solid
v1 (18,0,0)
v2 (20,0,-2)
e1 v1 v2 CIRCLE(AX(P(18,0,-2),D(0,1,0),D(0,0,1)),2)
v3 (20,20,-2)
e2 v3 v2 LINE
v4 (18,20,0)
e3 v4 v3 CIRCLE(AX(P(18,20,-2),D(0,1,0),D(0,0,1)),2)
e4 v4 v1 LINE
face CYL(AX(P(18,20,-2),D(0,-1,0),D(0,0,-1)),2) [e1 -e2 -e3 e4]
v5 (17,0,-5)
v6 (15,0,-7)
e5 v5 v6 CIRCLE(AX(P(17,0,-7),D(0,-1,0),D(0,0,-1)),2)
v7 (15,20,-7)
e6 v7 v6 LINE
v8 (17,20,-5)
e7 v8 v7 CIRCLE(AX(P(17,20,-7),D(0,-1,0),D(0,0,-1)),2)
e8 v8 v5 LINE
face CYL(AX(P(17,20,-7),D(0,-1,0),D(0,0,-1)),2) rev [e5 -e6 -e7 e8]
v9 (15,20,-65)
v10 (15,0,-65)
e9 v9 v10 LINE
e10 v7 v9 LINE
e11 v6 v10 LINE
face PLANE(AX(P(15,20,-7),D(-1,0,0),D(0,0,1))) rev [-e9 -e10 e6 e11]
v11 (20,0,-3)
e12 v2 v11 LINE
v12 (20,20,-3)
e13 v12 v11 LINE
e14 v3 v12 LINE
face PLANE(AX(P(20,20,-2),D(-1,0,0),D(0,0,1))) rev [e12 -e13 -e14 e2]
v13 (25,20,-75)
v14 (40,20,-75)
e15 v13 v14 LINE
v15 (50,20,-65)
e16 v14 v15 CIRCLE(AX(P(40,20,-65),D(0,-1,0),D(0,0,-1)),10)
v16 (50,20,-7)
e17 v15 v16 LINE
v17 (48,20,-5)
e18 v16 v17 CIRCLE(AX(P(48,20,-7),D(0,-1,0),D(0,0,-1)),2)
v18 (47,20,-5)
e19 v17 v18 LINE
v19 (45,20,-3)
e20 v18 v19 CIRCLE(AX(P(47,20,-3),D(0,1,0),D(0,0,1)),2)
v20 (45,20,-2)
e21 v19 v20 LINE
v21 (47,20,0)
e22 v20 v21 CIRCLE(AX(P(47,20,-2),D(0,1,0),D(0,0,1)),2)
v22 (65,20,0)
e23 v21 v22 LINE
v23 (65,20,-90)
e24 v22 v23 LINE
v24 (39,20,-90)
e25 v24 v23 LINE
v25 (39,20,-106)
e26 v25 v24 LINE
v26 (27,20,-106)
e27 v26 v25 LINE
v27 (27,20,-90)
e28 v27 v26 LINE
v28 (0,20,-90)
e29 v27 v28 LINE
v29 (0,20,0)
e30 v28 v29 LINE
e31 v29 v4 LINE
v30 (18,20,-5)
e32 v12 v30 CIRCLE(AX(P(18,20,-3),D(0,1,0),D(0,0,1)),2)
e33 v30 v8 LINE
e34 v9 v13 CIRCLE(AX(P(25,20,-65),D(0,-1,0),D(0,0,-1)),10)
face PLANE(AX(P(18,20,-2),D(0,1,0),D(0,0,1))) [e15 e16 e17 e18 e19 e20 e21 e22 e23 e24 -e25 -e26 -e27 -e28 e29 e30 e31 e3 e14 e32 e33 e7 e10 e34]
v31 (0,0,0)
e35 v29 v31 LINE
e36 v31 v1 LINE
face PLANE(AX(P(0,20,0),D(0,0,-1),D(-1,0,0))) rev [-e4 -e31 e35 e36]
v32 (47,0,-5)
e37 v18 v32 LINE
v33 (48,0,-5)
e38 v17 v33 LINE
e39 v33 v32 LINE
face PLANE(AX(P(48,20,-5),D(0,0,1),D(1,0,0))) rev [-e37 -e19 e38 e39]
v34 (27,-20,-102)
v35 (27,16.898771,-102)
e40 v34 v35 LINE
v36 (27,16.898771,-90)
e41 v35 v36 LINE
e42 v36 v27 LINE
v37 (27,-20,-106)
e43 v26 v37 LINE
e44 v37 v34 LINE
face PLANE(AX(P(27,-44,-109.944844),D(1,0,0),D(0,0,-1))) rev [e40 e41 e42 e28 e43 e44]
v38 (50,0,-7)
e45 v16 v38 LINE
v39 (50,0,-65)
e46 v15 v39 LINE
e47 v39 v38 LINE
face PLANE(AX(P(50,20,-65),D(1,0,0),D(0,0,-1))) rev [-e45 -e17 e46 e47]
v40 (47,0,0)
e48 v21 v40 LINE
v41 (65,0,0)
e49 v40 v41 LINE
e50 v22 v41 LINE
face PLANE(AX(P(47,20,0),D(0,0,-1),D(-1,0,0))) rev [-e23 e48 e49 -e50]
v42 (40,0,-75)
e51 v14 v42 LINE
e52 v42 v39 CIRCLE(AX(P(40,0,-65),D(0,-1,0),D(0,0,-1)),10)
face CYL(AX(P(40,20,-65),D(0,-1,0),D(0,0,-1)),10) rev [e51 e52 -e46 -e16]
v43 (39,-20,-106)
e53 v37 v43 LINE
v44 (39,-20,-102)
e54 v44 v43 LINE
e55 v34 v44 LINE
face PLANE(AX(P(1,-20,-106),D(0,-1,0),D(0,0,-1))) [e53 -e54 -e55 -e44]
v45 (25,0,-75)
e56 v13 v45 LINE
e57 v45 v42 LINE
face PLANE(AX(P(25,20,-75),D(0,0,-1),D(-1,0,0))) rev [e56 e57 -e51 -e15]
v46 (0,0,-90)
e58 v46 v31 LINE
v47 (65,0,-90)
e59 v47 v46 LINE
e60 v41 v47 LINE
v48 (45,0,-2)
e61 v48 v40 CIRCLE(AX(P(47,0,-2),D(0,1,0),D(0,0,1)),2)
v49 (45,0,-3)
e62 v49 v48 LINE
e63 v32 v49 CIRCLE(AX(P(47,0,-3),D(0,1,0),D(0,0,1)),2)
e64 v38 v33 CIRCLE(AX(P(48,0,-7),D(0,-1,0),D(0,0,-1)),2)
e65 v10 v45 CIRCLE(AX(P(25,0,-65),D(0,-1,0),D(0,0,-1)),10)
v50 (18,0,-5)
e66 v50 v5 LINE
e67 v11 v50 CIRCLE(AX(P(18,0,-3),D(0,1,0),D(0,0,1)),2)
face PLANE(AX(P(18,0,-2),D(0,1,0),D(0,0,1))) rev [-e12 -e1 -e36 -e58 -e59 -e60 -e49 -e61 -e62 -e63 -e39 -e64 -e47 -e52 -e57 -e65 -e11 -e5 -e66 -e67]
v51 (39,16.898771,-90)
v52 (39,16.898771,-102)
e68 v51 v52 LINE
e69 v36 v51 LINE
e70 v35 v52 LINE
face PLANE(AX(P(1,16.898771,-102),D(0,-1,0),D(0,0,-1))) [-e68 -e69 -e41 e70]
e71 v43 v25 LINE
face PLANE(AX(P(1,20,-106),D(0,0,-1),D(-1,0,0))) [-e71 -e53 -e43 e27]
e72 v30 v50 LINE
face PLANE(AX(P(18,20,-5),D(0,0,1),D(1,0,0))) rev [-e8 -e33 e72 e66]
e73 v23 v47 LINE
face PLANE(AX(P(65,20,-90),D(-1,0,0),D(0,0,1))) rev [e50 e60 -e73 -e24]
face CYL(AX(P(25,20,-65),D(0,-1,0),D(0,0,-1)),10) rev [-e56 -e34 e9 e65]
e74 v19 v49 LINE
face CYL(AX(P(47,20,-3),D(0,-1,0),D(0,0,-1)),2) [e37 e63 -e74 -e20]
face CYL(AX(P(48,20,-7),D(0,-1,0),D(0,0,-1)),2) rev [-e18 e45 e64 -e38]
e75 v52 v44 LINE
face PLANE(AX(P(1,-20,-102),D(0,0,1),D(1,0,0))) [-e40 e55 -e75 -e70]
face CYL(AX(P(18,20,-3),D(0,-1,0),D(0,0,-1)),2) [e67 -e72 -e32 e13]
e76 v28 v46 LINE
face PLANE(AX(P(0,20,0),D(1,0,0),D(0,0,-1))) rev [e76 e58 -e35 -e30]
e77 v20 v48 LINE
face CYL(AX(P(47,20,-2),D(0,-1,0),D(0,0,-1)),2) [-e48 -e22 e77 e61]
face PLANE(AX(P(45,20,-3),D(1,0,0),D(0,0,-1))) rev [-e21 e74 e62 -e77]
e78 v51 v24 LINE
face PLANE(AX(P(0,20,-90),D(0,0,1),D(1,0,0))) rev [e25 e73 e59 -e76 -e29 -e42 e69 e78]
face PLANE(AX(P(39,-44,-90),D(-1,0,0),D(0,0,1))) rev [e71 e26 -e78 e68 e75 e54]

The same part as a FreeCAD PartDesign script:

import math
import FreeCAD as App
import Part
import Sketcher


def add_polygon(sketch, points):
    """Adds a closed chain of lines whose ends are joined by coincident constraints."""
    first, n = sketch.GeometryCount, len(points)
    for a, b in zip(points, points[1:] + points[:1]):
        sketch.addGeometry(Part.LineSegment(App.Vector(*a, 0), App.Vector(*b, 0)), False)
    for i in range(n):
        sketch.addConstraint(Sketcher.Constraint("Coincident", first + i, 2, first + (i + 1) % n, 1))

doc = App.newDocument("Part")
body = doc.addObject("PartDesign::Body", "Body")

sketch1 = body.newObject("Sketcher::SketchObject", "Sketch")
sketch1.AttachmentSupport = (doc.getObject("XZ_Plane"), [""])
sketch1.MapMode = "FlatFace"
sketch1.addGeometry([
    Part.LineSegment(App.Vector(0, -90, 0), App.Vector(0, 0, 0)),
    Part.LineSegment(App.Vector(0, 0, 0), App.Vector(18, 0, 0)),
    Part.ArcOfCircle(Part.Circle(App.Vector(18, -2, 0), App.Vector(0, 0, 1), 2), math.radians(0), math.radians(90)),
    Part.LineSegment(App.Vector(20, -2, 0), App.Vector(20, -3, 0)),
    Part.ArcOfCircle(Part.Circle(App.Vector(18, -3, 0), App.Vector(0, 0, 1), 2), math.radians(-90), math.radians(0)),
    Part.LineSegment(App.Vector(18, -5, 0), App.Vector(17, -5, 0)),
    Part.ArcOfCircle(Part.Circle(App.Vector(17, -7, 0), App.Vector(0, 0, 1), 2), math.radians(90), math.radians(180)),
    Part.LineSegment(App.Vector(15, -7, 0), App.Vector(15, -65, 0)),
    Part.ArcOfCircle(Part.Circle(App.Vector(25, -65, 0), App.Vector(0, 0, 1), 10), math.radians(180), math.radians(270)),
    Part.LineSegment(App.Vector(25, -75, 0), App.Vector(40, -75, 0)),
    Part.ArcOfCircle(Part.Circle(App.Vector(40, -65, 0), App.Vector(0, 0, 1), 10), math.radians(-90), math.radians(0)),
    Part.LineSegment(App.Vector(50, -65, 0), App.Vector(50, -7, 0)),
    Part.ArcOfCircle(Part.Circle(App.Vector(48, -7, 0), App.Vector(0, 0, 1), 2), math.radians(0), math.radians(90)),
    Part.LineSegment(App.Vector(48, -5, 0), App.Vector(47, -5, 0)),
    Part.ArcOfCircle(Part.Circle(App.Vector(47, -3, 0), App.Vector(0, 0, 1), 2), math.radians(-180), math.radians(-90)),
    Part.LineSegment(App.Vector(45, -3, 0), App.Vector(45, -2, 0)),
    Part.ArcOfCircle(Part.Circle(App.Vector(47, -2, 0), App.Vector(0, 0, 1), 2), math.radians(90), math.radians(180)),
    Part.LineSegment(App.Vector(47, 0, 0), App.Vector(65, 0, 0)),
    Part.LineSegment(App.Vector(65, 0, 0), App.Vector(65, -90, 0)),
    Part.LineSegment(App.Vector(65, -90, 0), App.Vector(0, -90, 0)),
], False)
sketch1.addConstraint([
    Sketcher.Constraint("Coincident", 0, 2, 1, 1),
    Sketcher.Constraint("Tangent", 1, 2, 2, 2),
    Sketcher.Constraint("Tangent", 2, 1, 3, 1),
    Sketcher.Constraint("Tangent", 3, 2, 4, 2),
    Sketcher.Constraint("Tangent", 4, 1, 5, 1),
    Sketcher.Constraint("Tangent", 5, 2, 6, 1),
    Sketcher.Constraint("Tangent", 6, 2, 7, 1),
    Sketcher.Constraint("Tangent", 7, 2, 8, 1),
    Sketcher.Constraint("Tangent", 8, 2, 9, 1),
    Sketcher.Constraint("Tangent", 9, 2, 10, 1),
    Sketcher.Constraint("Tangent", 10, 2, 11, 1),
    Sketcher.Constraint("Tangent", 11, 2, 12, 1),
    Sketcher.Constraint("Tangent", 12, 2, 13, 1),
    Sketcher.Constraint("Tangent", 13, 2, 14, 2),
    Sketcher.Constraint("Tangent", 14, 1, 15, 1),
    Sketcher.Constraint("Tangent", 15, 2, 16, 2),
    Sketcher.Constraint("Tangent", 16, 1, 17, 1),
    Sketcher.Constraint("Coincident", 17, 2, 18, 1),
    Sketcher.Constraint("Coincident", 18, 2, 19, 1),
    Sketcher.Constraint("Coincident", 19, 2, 0, 1),
    Sketcher.Constraint("Vertical", 0),
    Sketcher.Constraint("Horizontal", 1),
    Sketcher.Constraint("Vertical", 3),
    Sketcher.Constraint("Horizontal", 5),
    Sketcher.Constraint("Vertical", 7),
    Sketcher.Constraint("Horizontal", 9),
    Sketcher.Constraint("Vertical", 11),
    Sketcher.Constraint("Horizontal", 13),
    Sketcher.Constraint("Vertical", 15),
    Sketcher.Constraint("Horizontal", 17),
    Sketcher.Constraint("Vertical", 18),
    Sketcher.Constraint("Horizontal", 19),
    Sketcher.Constraint("Coincident", 0, 2, -1, 1),
    Sketcher.Constraint("Equal", 2, 4),
    Sketcher.Constraint("Equal", 4, 6),
    Sketcher.Constraint("Equal", 8, 10),
    Sketcher.Constraint("Equal", 6, 12),
    Sketcher.Constraint("Equal", 12, 14),
    Sketcher.Constraint("Equal", 14, 16),
    Sketcher.Constraint("PointOnObject", 16, 1, -1),
    Sketcher.Constraint("Horizontal", 6, 3, 12, 3),
    Sketcher.Constraint("Equal", 5, 13),
    Sketcher.Constraint("Equal", 1, 17),
    Sketcher.Constraint("Equal", 13, 3),
    Sketcher.Constraint("Radius", 2, 2.0),
    Sketcher.Constraint("Radius", 8, 10.0),
    Sketcher.Constraint("DistanceX", 1, 1, 1, 2, 18.0),
    Sketcher.Constraint("DistanceX", 5, 2, 5, 1, 1.0),
    Sketcher.Constraint("DistanceX", 9, 1, 9, 2, 15.0),
    Sketcher.Constraint("DistanceY", 0, 1, 0, 2, 90.0),
    Sketcher.Constraint("DistanceY", 7, 2, 7, 1, 58.0),
])
pad1 = body.newObject("PartDesign::Pad", "Pad")
pad1.Profile = sketch1
pad1.Length = 20
pad1.Reversed = True

sketch2 = body.newObject("Sketcher::SketchObject", "Sketch001")
sketch2.AttachmentSupport = (doc.getObject("YZ_Plane"), [""])
sketch2.MapMode = "FlatFace"
sketch2.AttachmentOffset = App.Placement(App.Vector(0, 0, 65), App.Rotation())
add_polygon(sketch2, [(20, -106), (20, -90), (16.898771, -90), (16.898771, -102), (-20, -102), (-20, -106)])
sketch2.addConstraint([
    Sketcher.Constraint("Vertical", 0),
    Sketcher.Constraint("Horizontal", 1),
    Sketcher.Constraint("Vertical", 2),
    Sketcher.Constraint("Horizontal", 3),
    Sketcher.Constraint("Vertical", 4),
    Sketcher.Constraint("Horizontal", 5),
    Sketcher.Constraint("DistanceX", 5, 1, 5, 2, 40.0),
    Sketcher.Constraint("DistanceY", 0, 1, 0, 2, 16.0),
    Sketcher.Constraint("DistanceY", 2, 2, 2, 1, 12.0),
    Sketcher.Constraint("DistanceX", -1, 1, 0, 2, 20.0),
    Sketcher.Constraint("DistanceY", 0, 2, -1, 1, 90.0),
    Sketcher.Constraint("DistanceX", 1, 2, 1, 1, 3.101229),
])
pad2 = body.newObject("PartDesign::Pad", "Pad001")
pad2.Profile = sketch2
pad2.Length = 64
pad2.Reversed = True

sketch3 = body.newObject("Sketcher::SketchObject", "Sketch002")
sketch3.AttachmentSupport = (doc.getObject("XZ_Plane"), [""])
sketch3.MapMode = "FlatFace"
sketch3.AttachmentOffset = App.Placement(App.Vector(0, 0, -20), App.Rotation())
add_polygon(sketch3, [(27, -90), (27, -109.944844), (-10.96323, -111.789212), (-10.96323, -90)])
add_polygon(sketch3, [(39, -113.326185), (39, -90), (82.188937, -90), (82.188937, -109.944844)])
sketch3.addConstraint([
    Sketcher.Constraint("Vertical", 0),
    Sketcher.Constraint("Vertical", 2),
    Sketcher.Constraint("Horizontal", 3),
    Sketcher.Constraint("Vertical", 4),
    Sketcher.Constraint("Horizontal", 5),
    Sketcher.Constraint("Vertical", 6),
    Sketcher.Constraint("Horizontal", 3, 2, 4, 2),
    Sketcher.Constraint("Horizontal", 0, 2, 6, 2),
    Sketcher.Constraint("DistanceX", -1, 1, 0, 2, 27.0),
    Sketcher.Constraint("DistanceY", 2, 2, -1, 1, 90.0),
    Sketcher.Constraint("DistanceX", -1, 1, 4, 2, 39.0),
    Sketcher.Constraint("Distance", 7, 43.321101),
    Sketcher.Constraint("DistanceX", 3, 1, 3, 2, 37.96323),
    Sketcher.Constraint("DistanceY", 2, 1, 2, 2, 21.789212),
    Sketcher.Constraint("DistanceX", 5, 1, 5, 2, 43.188937),
    Sketcher.Constraint("DistanceY", 0, 2, 0, 1, 19.944844),
])
pocket1 = body.newObject("PartDesign::Pocket", "Pocket")
pocket1.Profile = sketch3
pocket1.Length = 64
pocket1.Reversed = True

doc.recompute()
